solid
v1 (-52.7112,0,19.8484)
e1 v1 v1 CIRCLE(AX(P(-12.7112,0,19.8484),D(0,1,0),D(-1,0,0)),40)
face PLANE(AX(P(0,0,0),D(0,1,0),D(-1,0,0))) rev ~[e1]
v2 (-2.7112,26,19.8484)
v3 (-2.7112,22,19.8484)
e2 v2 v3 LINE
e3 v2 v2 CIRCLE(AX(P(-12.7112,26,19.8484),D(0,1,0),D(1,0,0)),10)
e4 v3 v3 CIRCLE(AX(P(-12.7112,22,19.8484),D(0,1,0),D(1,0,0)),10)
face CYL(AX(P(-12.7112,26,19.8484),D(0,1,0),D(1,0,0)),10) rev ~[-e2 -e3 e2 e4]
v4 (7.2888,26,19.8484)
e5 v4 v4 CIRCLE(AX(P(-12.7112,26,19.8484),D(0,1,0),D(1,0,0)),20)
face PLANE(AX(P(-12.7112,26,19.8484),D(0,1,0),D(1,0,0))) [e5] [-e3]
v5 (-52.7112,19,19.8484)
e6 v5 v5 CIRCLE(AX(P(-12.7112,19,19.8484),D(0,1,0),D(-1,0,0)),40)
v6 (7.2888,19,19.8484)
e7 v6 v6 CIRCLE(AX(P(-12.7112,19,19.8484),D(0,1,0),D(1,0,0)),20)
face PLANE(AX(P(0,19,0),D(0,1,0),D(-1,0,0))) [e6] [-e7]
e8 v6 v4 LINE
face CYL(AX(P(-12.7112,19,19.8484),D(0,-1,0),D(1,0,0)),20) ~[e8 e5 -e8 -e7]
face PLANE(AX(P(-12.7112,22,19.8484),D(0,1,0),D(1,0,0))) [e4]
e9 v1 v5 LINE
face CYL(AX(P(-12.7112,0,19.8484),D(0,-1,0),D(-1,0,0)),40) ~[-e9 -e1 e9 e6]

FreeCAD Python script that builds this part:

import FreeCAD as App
import Part
import Sketcher
Q = App.Units.Quantity

doc = App.newDocument("Part")
body = doc.addObject("PartDesign::Body", "Body")

# Sketch on XZ plane
sketch1 = body.newObject("Sketcher::SketchObject", "Sketch")
sketch1.AttachmentSupport = (doc.getObject("XZ_Plane"), [""])
sketch1.MapMode = "FlatFace"
sketch1.addGeometry(Part.Circle(App.Vector(-12.7112, 19.8484, 0), App.Vector(0, 0, 1), 40), False)
sketch1.addConstraint([
    Sketcher.Constraint("Diameter", 0, Q("80 mm")),
    Sketcher.Constraint("DistanceX", 0, 3, -1, 1, Q("12.7112 mm")),
    Sketcher.Constraint("DistanceY", -1, 1, 0, 3, Q("19.8484 mm")),
])
pad1 = body.newObject("PartDesign::Pad", "Pad")
pad1.Profile = sketch1
pad1.Length = 19
pad1.Reversed = True

# Sketch on XZ plane
sketch2 = body.newObject("Sketcher::SketchObject", "Sketch001")
sketch2.AttachmentSupport = (doc.getObject("XZ_Plane"), [""])
sketch2.MapMode = "FlatFace"
sketch2.AttachmentOffset = App.Placement(App.Vector(0, 0, -19), App.Rotation())
sketch2.addGeometry(Part.Circle(App.Vector(-12.7112, 19.8484, 0), App.Vector(0, 0, 1), 20), False)
sketch2.addConstraint([
    Sketcher.Constraint("Diameter", 0, Q("40 mm")),
    Sketcher.Constraint("DistanceX", 0, 3, -1, 1, Q("12.7112 mm")),
    Sketcher.Constraint("DistanceY", -1, 1, 0, 3, Q("19.8484 mm")),
])
pad2 = body.newObject("PartDesign::Pad", "Pad001")
pad2.Profile = sketch2
pad2.Length = 7
pad2.Reversed = True

# Sketch on XZ plane
sketch3 = body.newObject("Sketcher::SketchObject", "Sketch002")
sketch3.AttachmentSupport = (doc.getObject("XZ_Plane"), [""])
sketch3.MapMode = "FlatFace"
sketch3.AttachmentOffset = App.Placement(App.Vector(0, 0, -26), App.Rotation())
sketch3.addGeometry(Part.Circle(App.Vector(-12.7112, 19.8484, 0), App.Vector(0, 0, 1), 10), False)
sketch3.addConstraint([
    Sketcher.Constraint("Diameter", 0, Q("20 mm")),
    Sketcher.Constraint("DistanceX", 0, 3, -1, 1, Q("12.7112 mm")),
    Sketcher.Constraint("DistanceY", -1, 1, 0, 3, Q("19.8484 mm")),
])
pocket1 = body.newObject("PartDesign::Pocket", "Pocket")
pocket1.Profile = sketch3
pocket1.Length = 4
pocket1.Reversed = True

doc.recompute()
